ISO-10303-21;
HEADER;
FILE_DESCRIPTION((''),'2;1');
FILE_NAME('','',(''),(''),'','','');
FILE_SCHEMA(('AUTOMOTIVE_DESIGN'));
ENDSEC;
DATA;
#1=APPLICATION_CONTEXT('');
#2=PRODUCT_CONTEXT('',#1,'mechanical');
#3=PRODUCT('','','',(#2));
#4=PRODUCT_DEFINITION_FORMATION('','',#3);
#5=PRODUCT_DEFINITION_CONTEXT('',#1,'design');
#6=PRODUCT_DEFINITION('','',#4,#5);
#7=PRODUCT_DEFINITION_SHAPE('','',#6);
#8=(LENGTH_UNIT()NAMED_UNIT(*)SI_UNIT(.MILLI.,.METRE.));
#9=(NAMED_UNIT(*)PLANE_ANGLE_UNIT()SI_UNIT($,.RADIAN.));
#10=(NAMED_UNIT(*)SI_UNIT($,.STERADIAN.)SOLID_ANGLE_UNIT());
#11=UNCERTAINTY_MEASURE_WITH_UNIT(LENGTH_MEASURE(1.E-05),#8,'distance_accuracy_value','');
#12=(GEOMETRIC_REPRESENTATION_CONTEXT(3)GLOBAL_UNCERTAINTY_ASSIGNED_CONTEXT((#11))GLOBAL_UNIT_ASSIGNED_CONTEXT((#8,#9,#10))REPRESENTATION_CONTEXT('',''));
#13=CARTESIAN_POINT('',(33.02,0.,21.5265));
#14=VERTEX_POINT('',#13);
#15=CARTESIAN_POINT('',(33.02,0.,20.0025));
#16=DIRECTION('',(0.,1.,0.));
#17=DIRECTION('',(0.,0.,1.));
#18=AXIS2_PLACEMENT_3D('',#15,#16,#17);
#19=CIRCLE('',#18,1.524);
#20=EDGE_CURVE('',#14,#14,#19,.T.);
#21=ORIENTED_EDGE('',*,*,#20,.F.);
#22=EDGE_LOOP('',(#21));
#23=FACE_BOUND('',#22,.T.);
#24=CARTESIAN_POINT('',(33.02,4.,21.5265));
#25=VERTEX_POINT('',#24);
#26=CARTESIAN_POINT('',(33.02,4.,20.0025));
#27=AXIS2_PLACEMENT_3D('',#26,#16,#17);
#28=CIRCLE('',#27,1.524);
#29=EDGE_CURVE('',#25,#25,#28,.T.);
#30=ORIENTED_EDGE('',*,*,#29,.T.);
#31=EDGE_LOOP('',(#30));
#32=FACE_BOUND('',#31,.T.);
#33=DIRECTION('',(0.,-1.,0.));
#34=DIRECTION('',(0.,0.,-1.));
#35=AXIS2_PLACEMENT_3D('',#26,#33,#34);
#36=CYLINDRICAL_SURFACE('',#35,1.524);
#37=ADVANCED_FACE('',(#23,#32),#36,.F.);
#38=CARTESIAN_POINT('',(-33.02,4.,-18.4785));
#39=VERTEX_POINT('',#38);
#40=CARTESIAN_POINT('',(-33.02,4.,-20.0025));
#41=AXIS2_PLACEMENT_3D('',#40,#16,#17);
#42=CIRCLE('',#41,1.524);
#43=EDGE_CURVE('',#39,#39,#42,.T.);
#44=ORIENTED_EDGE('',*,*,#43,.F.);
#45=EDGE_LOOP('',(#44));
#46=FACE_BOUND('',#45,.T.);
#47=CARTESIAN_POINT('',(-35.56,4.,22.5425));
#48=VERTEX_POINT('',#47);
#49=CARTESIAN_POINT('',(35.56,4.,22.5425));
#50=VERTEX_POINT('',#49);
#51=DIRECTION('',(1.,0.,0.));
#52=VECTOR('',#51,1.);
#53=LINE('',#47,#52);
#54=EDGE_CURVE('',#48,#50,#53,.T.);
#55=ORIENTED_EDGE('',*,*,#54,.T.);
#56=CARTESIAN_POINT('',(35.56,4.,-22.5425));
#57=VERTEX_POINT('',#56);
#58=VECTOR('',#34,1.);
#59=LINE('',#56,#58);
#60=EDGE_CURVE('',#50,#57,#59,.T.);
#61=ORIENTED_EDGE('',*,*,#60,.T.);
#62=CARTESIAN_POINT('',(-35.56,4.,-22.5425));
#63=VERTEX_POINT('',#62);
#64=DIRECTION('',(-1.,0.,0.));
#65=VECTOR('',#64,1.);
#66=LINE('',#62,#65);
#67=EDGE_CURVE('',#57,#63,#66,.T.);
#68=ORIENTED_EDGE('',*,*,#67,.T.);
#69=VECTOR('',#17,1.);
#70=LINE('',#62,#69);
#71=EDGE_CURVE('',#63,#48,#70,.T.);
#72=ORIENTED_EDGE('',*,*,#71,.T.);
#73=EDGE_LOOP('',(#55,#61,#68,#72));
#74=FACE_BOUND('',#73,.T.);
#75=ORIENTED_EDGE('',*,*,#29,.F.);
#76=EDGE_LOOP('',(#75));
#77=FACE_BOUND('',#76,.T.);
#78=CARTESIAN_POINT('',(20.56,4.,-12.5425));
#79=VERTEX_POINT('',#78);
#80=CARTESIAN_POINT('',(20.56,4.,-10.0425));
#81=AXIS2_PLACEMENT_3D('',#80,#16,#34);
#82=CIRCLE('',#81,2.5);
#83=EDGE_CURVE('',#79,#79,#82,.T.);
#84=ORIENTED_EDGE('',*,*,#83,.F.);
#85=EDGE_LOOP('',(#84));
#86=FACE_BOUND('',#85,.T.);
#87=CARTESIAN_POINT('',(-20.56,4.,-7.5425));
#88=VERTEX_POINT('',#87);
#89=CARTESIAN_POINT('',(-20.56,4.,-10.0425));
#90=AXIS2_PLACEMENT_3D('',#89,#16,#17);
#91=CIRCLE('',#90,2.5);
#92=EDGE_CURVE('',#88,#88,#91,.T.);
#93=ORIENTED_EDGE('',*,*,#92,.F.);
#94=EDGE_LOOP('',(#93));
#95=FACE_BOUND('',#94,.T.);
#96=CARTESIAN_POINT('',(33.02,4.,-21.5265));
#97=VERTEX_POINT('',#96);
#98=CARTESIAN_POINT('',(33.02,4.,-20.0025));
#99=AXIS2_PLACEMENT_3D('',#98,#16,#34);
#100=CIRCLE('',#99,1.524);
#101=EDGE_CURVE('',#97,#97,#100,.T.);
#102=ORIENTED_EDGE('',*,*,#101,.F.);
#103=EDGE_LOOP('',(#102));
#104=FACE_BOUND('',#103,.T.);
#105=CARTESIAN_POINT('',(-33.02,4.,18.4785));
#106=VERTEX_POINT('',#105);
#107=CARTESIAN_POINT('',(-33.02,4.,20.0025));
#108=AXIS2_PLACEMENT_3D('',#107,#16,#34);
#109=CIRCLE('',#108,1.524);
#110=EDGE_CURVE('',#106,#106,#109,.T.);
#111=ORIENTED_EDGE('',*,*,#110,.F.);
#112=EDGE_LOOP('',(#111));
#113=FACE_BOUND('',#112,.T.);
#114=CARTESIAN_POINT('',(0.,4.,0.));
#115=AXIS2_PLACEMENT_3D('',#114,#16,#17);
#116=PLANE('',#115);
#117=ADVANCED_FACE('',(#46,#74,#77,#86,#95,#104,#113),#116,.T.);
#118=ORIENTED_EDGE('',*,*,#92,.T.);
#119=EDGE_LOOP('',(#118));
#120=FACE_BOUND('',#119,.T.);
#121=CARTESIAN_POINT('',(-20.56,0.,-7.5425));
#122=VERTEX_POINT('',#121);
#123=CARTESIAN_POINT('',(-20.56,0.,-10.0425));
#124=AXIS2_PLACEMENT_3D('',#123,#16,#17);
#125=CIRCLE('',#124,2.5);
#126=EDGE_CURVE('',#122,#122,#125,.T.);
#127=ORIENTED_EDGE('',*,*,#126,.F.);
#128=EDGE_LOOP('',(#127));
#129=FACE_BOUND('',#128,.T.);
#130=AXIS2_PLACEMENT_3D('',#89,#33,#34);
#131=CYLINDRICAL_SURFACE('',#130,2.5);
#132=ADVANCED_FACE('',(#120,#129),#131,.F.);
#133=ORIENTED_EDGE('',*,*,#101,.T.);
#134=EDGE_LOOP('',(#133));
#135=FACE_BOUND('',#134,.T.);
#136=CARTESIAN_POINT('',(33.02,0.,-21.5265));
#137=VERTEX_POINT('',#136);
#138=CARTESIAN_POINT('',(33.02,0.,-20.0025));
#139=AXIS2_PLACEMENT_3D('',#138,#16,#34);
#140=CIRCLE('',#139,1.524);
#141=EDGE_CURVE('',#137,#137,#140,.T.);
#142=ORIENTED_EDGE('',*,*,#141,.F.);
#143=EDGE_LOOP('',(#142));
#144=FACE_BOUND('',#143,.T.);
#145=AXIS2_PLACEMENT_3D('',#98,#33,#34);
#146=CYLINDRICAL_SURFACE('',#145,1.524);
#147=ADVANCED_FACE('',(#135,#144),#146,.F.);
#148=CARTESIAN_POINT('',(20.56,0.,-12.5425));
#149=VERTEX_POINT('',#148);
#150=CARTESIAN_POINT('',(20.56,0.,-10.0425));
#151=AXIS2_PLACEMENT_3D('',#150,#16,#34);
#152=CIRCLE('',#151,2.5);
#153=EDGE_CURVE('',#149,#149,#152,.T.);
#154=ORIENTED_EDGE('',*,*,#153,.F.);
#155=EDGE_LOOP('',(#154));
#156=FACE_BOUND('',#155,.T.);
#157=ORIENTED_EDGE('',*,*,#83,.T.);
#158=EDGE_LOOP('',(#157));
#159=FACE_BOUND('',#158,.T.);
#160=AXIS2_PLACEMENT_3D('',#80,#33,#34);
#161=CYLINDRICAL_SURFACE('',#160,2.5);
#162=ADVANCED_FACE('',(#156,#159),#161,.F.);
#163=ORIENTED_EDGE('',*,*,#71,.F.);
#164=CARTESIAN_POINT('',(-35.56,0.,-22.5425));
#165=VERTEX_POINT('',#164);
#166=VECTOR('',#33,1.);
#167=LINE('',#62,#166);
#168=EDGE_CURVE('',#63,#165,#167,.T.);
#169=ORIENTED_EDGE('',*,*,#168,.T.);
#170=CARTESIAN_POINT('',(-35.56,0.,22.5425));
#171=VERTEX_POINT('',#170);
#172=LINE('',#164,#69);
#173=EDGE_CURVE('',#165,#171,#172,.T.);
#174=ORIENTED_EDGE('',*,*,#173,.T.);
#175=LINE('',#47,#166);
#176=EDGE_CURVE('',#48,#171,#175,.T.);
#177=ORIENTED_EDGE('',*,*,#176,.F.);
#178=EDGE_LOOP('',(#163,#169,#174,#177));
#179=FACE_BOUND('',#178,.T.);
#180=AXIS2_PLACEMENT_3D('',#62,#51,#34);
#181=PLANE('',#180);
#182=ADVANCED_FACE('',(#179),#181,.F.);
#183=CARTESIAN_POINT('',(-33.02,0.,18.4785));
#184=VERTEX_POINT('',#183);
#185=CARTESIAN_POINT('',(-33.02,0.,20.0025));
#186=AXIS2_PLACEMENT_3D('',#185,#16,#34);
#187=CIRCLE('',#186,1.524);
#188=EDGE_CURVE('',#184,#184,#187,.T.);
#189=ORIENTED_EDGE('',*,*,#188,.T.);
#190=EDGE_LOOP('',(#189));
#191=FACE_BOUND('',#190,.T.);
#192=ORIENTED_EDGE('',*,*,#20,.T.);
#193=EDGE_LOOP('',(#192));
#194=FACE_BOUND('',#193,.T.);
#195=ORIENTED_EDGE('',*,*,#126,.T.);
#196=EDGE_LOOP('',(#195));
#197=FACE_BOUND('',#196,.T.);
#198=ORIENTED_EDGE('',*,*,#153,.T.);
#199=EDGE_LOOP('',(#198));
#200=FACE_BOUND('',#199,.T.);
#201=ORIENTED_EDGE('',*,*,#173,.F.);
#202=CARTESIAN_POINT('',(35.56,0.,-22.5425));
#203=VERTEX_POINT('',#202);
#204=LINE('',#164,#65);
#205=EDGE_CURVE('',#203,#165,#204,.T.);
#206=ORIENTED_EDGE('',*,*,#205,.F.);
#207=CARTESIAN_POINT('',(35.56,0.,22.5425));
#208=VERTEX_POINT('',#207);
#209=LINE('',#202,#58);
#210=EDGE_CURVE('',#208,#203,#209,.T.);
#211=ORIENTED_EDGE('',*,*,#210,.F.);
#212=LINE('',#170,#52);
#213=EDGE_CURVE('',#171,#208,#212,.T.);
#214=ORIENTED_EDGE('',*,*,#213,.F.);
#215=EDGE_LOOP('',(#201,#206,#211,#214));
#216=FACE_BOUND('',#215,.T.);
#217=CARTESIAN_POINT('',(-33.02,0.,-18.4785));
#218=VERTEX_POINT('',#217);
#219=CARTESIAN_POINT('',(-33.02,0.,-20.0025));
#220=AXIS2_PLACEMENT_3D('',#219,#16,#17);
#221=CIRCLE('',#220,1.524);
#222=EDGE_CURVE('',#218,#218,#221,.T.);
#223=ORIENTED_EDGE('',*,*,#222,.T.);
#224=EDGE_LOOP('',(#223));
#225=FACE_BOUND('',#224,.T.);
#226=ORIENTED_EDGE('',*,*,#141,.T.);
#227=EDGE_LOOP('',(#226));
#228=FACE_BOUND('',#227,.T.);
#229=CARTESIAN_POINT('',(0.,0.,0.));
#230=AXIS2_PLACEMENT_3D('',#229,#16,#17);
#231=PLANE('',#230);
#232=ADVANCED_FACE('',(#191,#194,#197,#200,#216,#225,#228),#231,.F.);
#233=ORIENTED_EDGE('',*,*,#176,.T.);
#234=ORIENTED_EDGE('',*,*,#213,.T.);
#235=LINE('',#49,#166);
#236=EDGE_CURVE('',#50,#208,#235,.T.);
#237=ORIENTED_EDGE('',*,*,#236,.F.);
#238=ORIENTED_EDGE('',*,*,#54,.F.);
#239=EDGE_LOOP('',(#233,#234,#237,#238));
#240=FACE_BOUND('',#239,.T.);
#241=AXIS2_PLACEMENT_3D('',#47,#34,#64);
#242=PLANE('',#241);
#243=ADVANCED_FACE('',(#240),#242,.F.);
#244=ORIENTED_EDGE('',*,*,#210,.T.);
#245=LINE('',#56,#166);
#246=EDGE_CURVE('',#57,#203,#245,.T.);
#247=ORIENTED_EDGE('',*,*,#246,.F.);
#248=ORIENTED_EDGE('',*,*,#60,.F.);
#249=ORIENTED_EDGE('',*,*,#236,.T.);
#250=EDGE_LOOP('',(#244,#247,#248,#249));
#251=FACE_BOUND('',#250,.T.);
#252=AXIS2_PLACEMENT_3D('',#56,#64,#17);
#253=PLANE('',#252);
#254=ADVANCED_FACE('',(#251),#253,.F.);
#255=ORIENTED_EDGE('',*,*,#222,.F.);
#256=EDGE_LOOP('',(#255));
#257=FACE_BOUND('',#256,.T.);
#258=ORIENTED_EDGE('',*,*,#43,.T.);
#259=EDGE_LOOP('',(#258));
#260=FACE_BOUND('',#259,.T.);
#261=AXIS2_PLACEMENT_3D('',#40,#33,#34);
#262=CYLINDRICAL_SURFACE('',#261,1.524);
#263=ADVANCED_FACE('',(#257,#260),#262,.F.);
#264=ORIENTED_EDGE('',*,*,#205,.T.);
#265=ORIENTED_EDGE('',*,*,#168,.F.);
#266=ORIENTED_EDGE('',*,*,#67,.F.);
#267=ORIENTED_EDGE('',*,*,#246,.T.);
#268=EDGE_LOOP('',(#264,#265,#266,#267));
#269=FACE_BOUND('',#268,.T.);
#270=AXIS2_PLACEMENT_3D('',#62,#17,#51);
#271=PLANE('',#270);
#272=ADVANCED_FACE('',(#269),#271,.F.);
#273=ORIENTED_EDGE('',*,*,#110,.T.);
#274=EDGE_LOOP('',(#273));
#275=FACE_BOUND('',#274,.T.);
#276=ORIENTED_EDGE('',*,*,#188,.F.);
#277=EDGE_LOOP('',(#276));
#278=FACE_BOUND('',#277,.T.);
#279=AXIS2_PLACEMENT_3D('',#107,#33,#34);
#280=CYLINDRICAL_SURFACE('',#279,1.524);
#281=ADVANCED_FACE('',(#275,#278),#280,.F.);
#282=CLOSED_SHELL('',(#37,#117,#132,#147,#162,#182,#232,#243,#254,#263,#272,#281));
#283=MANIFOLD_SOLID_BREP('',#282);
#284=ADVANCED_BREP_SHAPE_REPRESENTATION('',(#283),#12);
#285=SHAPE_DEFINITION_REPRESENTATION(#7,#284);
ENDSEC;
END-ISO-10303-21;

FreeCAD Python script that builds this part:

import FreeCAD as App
import Part
import Sketcher
Q = App.Units.Quantity


def add_polygon(sketch, points):
    """Adds a closed chain of lines whose ends are joined by coincident constraints."""
    first, n = sketch.GeometryCount, len(points)
    for a, b in zip(points, points[1:] + points[:1]):
        sketch.addGeometry(Part.LineSegment(App.Vector(*a, 0), App.Vector(*b, 0)), False)
    for i in range(n):
        sketch.addConstraint(Sketcher.Constraint("Coincident", first + i, 2, first + (i + 1) % n, 1))

doc = App.newDocument("Part")
params = doc.addObject("Spreadsheet::Sheet", "Params")
for row, (alias, value) in enumerate([
    ("sketch1_diameter", "0.12 in"),
    ("sketch1_width", "2.8 in"),
    ("sketch1_height", "1.775 in"),
    ("pad1_length", "4 mm"),
], start=1):
    params.set(f"A{row}", alias)
    params.set(f"B{row}", "=" + value)
    params.setAlias(f"B{row}", alias)

body = doc.addObject("PartDesign::Body", "Body")

# Sketch on XZ plane
sketch1 = body.newObject("Sketcher::SketchObject", "Sketch")
sketch1.AttachmentSupport = (doc.getObject("XZ_Plane"), [""])
sketch1.MapMode = "FlatFace"
add_polygon(sketch1, [(-35.6, -22.5), (-35.6, 22.5), (35.6, 22.5), (35.6, -22.5)])  # lines 0-3
sketch1.addGeometry(Part.Circle(App.Vector(-33, 20, 0), App.Vector(0, 0, 1), 1.5), False)  # 4
sketch1.addGeometry(Part.Circle(App.Vector(33, 20, 0), App.Vector(0, 0, 1), 1.5), False)  # 5
sketch1.addGeometry(Part.Circle(App.Vector(-20.6, -10, 0), App.Vector(0, 0, 1), 2.5), False)  # 6
sketch1.addGeometry(Part.Circle(App.Vector(-33, -20, 0), App.Vector(0, 0, 1), 1.5), False)  # 7
sketch1.addGeometry(Part.Circle(App.Vector(20.6, -10, 0), App.Vector(0, 0, 1), 2.5), False)  # 8
sketch1.addGeometry(Part.Circle(App.Vector(33, -20, 0), App.Vector(0, 0, 1), 1.5), False)  # 9
sketch1.addConstraint(Sketcher.Constraint("Vertical", 0))
sketch1.addConstraint(Sketcher.Constraint("Horizontal", 1))
sketch1.addConstraint(Sketcher.Constraint("Vertical", 2))
sketch1.addConstraint(Sketcher.Constraint("Horizontal", 3))
sketch1.addConstraint(Sketcher.Constraint("Equal", 4, 5))
sketch1.addConstraint(Sketcher.Constraint("Equal", 5, 7))
sketch1.addConstraint(Sketcher.Constraint("Equal", 6, 8))
sketch1.addConstraint(Sketcher.Constraint("Equal", 7, 9))
sketch1.addConstraint(Sketcher.Constraint("Symmetric", 5, 3, 7, 3, -1, 1))
sketch1.addConstraint(Sketcher.Constraint("Symmetric", 4, 3, 9, 3, -1, 1))
sketch1.addConstraint(Sketcher.Constraint("Symmetric", 0, 2, 2, 2, -1, 1))
sketch1.addConstraint(Sketcher.Constraint("Symmetric", 4, 3, 5, 3, -2))
sketch1.addConstraint(Sketcher.Constraint("Symmetric", 6, 3, 8, 3, -2))
sketch1.addConstraint(Sketcher.Constraint("Diameter", 4, Q("0.12 in")))
sketch1.addConstraint(Sketcher.Constraint("DistanceX", 1, 1, 1, 2, Q("2.8 in")))
sketch1.addConstraint(Sketcher.Constraint("DistanceX", 4, 3, -1, 1, Q("1.3 in")))
sketch1.addConstraint(Sketcher.Constraint("DistanceY", 4, 3, 0, 2, Q("0.1 in")))
sketch1.addConstraint(Sketcher.Constraint("Diameter", 6, Q("5 mm")))
sketch1.addConstraint(Sketcher.Constraint("DistanceY", 0, 1, 0, 2, Q("1.775 in")))
sketch1.addConstraint(Sketcher.Constraint("DistanceX", 6, 3, -1, 1, Q("20.56 mm")))
sketch1.addConstraint(Sketcher.Constraint("DistanceY", 6, 3, -1, 1, Q("10.0425 mm")))
sketch1.setExpression("Constraints[17]", "Params.sketch1_diameter")
sketch1.setExpression("Constraints[18]", "Params.sketch1_width")
sketch1.setExpression("Constraints[22]", "Params.sketch1_height")
pad1 = body.newObject("PartDesign::Pad", "Pad")
pad1.Profile = sketch1
pad1.setExpression("Length", "Params.pad1_length")
pad1.Reversed = True

doc.recompute()
